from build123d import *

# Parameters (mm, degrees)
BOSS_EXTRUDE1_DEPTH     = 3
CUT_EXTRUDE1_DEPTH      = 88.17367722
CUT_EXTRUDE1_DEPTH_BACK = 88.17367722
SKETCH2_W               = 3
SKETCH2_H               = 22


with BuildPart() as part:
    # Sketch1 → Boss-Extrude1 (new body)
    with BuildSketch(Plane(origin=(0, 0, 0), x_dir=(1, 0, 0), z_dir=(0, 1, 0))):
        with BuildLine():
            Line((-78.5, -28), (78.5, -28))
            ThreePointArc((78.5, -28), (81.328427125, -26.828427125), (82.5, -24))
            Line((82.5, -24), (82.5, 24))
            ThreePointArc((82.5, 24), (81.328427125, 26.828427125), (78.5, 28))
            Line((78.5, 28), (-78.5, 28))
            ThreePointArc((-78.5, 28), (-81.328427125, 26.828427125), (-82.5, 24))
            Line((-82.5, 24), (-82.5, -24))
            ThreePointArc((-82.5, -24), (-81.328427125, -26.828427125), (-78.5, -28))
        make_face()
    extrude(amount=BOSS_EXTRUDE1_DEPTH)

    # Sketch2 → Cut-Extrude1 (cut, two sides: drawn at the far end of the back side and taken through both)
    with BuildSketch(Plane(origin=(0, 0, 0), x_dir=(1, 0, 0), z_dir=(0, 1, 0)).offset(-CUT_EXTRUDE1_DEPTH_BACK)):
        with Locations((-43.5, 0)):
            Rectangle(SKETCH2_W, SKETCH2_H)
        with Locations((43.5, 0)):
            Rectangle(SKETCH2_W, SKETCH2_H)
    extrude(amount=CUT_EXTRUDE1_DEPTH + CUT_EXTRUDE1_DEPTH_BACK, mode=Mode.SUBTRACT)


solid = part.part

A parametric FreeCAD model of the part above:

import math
import FreeCAD as App
import Part
import Sketcher


def add_polygon(sketch, points):
    """Adds a closed chain of lines whose ends are joined by coincident constraints."""
    first, n = sketch.GeometryCount, len(points)
    for a, b in zip(points, points[1:] + points[:1]):
        sketch.addGeometry(Part.LineSegment(App.Vector(*a, 0), App.Vector(*b, 0)), False)
    for i in range(n):
        sketch.addConstraint(Sketcher.Constraint("Coincident", first + i, 2, first + (i + 1) % n, 1))

doc = App.newDocument("Part")
body = doc.addObject("PartDesign::Body", "Body")

sketch1 = body.newObject("Sketcher::SketchObject", "Sketch")
sketch1.AttachmentSupport = (doc.getObject("XZ_Plane"), [""])
sketch1.MapMode = "FlatFace"
sketch1.addGeometry([
    Part.LineSegment(App.Vector(-78.5, 28, 0), App.Vector(78.5, 28, 0)),
    Part.ArcOfCircle(Part.Circle(App.Vector(78.5, 24, 0), App.Vector(0, 0, 1), 4), math.radians(0), math.radians(90)),
    Part.LineSegment(App.Vector(82.5, 24, 0), App.Vector(82.5, -24, 0)),
    Part.ArcOfCircle(Part.Circle(App.Vector(78.5, -24, 0), App.Vector(0, 0, 1), 4), math.radians(-90), math.radians(0)),
    Part.LineSegment(App.Vector(78.5, -28, 0), App.Vector(-78.5, -28, 0)),
    Part.ArcOfCircle(Part.Circle(App.Vector(-78.5, -24, 0), App.Vector(0, 0, 1), 4), math.radians(180), math.radians(270)),
    Part.LineSegment(App.Vector(-82.5, -24, 0), App.Vector(-82.5, 24, 0)),
    Part.ArcOfCircle(Part.Circle(App.Vector(-78.5, 24, 0), App.Vector(0, 0, 1), 4), math.radians(90), math.radians(180)),
], False)
sketch1.addConstraint([
    Sketcher.Constraint("Tangent", 0, 2, 1, 2),
    Sketcher.Constraint("Tangent", 1, 1, 2, 1),
    Sketcher.Constraint("Tangent", 2, 2, 3, 2),
    Sketcher.Constraint("Tangent", 3, 1, 4, 1),
    Sketcher.Constraint("Tangent", 4, 2, 5, 2),
    Sketcher.Constraint("Tangent", 5, 1, 6, 1),
    Sketcher.Constraint("Tangent", 6, 2, 7, 2),
    Sketcher.Constraint("Tangent", 7, 1, 0, 1),
    Sketcher.Constraint("Horizontal", 0),
    Sketcher.Constraint("Vertical", 2),
    Sketcher.Constraint("Horizontal", 4),
    Sketcher.Constraint("Vertical", 6),
    Sketcher.Constraint("Equal", 1, 3),
    Sketcher.Constraint("Equal", 3, 5),
    Sketcher.Constraint("Equal", 5, 7),
    Sketcher.Constraint("Symmetric", 1, 3, 5, 3, -1, 1),
    Sketcher.Constraint("Radius", 1, 4.0),
    Sketcher.Constraint("DistanceX", 0, 1, 0, 2, 157.0),
    Sketcher.Constraint("DistanceY", 2, 2, 2, 1, 48.0),
])
pad1 = body.newObject("PartDesign::Pad", "Pad")
pad1.Profile = sketch1
pad1.Length = 3
pad1.Reversed = True

sketch2 = body.newObject("Sketcher::SketchObject", "Sketch001")
sketch2.AttachmentSupport = (doc.getObject("XZ_Plane"), [""])
sketch2.MapMode = "FlatFace"
add_polygon(sketch2, [(-45, -11), (-45, 11), (-42, 11), (-42, -11)])
add_polygon(sketch2, [(42, -11), (42, 11), (45, 11), (45, -11)])
sketch2.addConstraint([
    Sketcher.Constraint("Vertical", 0),
    Sketcher.Constraint("Horizontal", 1),
    Sketcher.Constraint("Vertical", 2),
    Sketcher.Constraint("Horizontal", 3),
    Sketcher.Constraint("Vertical", 4),
    Sketcher.Constraint("Horizontal", 5),
    Sketcher.Constraint("Vertical", 6),
    Sketcher.Constraint("Horizontal", 7),
    Sketcher.Constraint("Symmetric", 2, 2, 4, 2, -1, 1),
    Sketcher.Constraint("Symmetric", 0, 2, 6, 2, -1, 1),
    Sketcher.Constraint("Horizontal", 1, 2, 4, 2),
    Sketcher.Constraint("DistanceX", 1, 1, 1, 2, 3.0),
    Sketcher.Constraint("DistanceY", 0, 1, 0, 2, 22.0),
    Sketcher.Constraint("DistanceX", 0, 2, -1, 1, 45.0),
])
pocket1 = body.newObject("PartDesign::Pocket", "Pocket")
pocket1.Profile = sketch2
pocket1.Type = "ThroughAll"
pocket1.Midplane = True

doc.recompute()
